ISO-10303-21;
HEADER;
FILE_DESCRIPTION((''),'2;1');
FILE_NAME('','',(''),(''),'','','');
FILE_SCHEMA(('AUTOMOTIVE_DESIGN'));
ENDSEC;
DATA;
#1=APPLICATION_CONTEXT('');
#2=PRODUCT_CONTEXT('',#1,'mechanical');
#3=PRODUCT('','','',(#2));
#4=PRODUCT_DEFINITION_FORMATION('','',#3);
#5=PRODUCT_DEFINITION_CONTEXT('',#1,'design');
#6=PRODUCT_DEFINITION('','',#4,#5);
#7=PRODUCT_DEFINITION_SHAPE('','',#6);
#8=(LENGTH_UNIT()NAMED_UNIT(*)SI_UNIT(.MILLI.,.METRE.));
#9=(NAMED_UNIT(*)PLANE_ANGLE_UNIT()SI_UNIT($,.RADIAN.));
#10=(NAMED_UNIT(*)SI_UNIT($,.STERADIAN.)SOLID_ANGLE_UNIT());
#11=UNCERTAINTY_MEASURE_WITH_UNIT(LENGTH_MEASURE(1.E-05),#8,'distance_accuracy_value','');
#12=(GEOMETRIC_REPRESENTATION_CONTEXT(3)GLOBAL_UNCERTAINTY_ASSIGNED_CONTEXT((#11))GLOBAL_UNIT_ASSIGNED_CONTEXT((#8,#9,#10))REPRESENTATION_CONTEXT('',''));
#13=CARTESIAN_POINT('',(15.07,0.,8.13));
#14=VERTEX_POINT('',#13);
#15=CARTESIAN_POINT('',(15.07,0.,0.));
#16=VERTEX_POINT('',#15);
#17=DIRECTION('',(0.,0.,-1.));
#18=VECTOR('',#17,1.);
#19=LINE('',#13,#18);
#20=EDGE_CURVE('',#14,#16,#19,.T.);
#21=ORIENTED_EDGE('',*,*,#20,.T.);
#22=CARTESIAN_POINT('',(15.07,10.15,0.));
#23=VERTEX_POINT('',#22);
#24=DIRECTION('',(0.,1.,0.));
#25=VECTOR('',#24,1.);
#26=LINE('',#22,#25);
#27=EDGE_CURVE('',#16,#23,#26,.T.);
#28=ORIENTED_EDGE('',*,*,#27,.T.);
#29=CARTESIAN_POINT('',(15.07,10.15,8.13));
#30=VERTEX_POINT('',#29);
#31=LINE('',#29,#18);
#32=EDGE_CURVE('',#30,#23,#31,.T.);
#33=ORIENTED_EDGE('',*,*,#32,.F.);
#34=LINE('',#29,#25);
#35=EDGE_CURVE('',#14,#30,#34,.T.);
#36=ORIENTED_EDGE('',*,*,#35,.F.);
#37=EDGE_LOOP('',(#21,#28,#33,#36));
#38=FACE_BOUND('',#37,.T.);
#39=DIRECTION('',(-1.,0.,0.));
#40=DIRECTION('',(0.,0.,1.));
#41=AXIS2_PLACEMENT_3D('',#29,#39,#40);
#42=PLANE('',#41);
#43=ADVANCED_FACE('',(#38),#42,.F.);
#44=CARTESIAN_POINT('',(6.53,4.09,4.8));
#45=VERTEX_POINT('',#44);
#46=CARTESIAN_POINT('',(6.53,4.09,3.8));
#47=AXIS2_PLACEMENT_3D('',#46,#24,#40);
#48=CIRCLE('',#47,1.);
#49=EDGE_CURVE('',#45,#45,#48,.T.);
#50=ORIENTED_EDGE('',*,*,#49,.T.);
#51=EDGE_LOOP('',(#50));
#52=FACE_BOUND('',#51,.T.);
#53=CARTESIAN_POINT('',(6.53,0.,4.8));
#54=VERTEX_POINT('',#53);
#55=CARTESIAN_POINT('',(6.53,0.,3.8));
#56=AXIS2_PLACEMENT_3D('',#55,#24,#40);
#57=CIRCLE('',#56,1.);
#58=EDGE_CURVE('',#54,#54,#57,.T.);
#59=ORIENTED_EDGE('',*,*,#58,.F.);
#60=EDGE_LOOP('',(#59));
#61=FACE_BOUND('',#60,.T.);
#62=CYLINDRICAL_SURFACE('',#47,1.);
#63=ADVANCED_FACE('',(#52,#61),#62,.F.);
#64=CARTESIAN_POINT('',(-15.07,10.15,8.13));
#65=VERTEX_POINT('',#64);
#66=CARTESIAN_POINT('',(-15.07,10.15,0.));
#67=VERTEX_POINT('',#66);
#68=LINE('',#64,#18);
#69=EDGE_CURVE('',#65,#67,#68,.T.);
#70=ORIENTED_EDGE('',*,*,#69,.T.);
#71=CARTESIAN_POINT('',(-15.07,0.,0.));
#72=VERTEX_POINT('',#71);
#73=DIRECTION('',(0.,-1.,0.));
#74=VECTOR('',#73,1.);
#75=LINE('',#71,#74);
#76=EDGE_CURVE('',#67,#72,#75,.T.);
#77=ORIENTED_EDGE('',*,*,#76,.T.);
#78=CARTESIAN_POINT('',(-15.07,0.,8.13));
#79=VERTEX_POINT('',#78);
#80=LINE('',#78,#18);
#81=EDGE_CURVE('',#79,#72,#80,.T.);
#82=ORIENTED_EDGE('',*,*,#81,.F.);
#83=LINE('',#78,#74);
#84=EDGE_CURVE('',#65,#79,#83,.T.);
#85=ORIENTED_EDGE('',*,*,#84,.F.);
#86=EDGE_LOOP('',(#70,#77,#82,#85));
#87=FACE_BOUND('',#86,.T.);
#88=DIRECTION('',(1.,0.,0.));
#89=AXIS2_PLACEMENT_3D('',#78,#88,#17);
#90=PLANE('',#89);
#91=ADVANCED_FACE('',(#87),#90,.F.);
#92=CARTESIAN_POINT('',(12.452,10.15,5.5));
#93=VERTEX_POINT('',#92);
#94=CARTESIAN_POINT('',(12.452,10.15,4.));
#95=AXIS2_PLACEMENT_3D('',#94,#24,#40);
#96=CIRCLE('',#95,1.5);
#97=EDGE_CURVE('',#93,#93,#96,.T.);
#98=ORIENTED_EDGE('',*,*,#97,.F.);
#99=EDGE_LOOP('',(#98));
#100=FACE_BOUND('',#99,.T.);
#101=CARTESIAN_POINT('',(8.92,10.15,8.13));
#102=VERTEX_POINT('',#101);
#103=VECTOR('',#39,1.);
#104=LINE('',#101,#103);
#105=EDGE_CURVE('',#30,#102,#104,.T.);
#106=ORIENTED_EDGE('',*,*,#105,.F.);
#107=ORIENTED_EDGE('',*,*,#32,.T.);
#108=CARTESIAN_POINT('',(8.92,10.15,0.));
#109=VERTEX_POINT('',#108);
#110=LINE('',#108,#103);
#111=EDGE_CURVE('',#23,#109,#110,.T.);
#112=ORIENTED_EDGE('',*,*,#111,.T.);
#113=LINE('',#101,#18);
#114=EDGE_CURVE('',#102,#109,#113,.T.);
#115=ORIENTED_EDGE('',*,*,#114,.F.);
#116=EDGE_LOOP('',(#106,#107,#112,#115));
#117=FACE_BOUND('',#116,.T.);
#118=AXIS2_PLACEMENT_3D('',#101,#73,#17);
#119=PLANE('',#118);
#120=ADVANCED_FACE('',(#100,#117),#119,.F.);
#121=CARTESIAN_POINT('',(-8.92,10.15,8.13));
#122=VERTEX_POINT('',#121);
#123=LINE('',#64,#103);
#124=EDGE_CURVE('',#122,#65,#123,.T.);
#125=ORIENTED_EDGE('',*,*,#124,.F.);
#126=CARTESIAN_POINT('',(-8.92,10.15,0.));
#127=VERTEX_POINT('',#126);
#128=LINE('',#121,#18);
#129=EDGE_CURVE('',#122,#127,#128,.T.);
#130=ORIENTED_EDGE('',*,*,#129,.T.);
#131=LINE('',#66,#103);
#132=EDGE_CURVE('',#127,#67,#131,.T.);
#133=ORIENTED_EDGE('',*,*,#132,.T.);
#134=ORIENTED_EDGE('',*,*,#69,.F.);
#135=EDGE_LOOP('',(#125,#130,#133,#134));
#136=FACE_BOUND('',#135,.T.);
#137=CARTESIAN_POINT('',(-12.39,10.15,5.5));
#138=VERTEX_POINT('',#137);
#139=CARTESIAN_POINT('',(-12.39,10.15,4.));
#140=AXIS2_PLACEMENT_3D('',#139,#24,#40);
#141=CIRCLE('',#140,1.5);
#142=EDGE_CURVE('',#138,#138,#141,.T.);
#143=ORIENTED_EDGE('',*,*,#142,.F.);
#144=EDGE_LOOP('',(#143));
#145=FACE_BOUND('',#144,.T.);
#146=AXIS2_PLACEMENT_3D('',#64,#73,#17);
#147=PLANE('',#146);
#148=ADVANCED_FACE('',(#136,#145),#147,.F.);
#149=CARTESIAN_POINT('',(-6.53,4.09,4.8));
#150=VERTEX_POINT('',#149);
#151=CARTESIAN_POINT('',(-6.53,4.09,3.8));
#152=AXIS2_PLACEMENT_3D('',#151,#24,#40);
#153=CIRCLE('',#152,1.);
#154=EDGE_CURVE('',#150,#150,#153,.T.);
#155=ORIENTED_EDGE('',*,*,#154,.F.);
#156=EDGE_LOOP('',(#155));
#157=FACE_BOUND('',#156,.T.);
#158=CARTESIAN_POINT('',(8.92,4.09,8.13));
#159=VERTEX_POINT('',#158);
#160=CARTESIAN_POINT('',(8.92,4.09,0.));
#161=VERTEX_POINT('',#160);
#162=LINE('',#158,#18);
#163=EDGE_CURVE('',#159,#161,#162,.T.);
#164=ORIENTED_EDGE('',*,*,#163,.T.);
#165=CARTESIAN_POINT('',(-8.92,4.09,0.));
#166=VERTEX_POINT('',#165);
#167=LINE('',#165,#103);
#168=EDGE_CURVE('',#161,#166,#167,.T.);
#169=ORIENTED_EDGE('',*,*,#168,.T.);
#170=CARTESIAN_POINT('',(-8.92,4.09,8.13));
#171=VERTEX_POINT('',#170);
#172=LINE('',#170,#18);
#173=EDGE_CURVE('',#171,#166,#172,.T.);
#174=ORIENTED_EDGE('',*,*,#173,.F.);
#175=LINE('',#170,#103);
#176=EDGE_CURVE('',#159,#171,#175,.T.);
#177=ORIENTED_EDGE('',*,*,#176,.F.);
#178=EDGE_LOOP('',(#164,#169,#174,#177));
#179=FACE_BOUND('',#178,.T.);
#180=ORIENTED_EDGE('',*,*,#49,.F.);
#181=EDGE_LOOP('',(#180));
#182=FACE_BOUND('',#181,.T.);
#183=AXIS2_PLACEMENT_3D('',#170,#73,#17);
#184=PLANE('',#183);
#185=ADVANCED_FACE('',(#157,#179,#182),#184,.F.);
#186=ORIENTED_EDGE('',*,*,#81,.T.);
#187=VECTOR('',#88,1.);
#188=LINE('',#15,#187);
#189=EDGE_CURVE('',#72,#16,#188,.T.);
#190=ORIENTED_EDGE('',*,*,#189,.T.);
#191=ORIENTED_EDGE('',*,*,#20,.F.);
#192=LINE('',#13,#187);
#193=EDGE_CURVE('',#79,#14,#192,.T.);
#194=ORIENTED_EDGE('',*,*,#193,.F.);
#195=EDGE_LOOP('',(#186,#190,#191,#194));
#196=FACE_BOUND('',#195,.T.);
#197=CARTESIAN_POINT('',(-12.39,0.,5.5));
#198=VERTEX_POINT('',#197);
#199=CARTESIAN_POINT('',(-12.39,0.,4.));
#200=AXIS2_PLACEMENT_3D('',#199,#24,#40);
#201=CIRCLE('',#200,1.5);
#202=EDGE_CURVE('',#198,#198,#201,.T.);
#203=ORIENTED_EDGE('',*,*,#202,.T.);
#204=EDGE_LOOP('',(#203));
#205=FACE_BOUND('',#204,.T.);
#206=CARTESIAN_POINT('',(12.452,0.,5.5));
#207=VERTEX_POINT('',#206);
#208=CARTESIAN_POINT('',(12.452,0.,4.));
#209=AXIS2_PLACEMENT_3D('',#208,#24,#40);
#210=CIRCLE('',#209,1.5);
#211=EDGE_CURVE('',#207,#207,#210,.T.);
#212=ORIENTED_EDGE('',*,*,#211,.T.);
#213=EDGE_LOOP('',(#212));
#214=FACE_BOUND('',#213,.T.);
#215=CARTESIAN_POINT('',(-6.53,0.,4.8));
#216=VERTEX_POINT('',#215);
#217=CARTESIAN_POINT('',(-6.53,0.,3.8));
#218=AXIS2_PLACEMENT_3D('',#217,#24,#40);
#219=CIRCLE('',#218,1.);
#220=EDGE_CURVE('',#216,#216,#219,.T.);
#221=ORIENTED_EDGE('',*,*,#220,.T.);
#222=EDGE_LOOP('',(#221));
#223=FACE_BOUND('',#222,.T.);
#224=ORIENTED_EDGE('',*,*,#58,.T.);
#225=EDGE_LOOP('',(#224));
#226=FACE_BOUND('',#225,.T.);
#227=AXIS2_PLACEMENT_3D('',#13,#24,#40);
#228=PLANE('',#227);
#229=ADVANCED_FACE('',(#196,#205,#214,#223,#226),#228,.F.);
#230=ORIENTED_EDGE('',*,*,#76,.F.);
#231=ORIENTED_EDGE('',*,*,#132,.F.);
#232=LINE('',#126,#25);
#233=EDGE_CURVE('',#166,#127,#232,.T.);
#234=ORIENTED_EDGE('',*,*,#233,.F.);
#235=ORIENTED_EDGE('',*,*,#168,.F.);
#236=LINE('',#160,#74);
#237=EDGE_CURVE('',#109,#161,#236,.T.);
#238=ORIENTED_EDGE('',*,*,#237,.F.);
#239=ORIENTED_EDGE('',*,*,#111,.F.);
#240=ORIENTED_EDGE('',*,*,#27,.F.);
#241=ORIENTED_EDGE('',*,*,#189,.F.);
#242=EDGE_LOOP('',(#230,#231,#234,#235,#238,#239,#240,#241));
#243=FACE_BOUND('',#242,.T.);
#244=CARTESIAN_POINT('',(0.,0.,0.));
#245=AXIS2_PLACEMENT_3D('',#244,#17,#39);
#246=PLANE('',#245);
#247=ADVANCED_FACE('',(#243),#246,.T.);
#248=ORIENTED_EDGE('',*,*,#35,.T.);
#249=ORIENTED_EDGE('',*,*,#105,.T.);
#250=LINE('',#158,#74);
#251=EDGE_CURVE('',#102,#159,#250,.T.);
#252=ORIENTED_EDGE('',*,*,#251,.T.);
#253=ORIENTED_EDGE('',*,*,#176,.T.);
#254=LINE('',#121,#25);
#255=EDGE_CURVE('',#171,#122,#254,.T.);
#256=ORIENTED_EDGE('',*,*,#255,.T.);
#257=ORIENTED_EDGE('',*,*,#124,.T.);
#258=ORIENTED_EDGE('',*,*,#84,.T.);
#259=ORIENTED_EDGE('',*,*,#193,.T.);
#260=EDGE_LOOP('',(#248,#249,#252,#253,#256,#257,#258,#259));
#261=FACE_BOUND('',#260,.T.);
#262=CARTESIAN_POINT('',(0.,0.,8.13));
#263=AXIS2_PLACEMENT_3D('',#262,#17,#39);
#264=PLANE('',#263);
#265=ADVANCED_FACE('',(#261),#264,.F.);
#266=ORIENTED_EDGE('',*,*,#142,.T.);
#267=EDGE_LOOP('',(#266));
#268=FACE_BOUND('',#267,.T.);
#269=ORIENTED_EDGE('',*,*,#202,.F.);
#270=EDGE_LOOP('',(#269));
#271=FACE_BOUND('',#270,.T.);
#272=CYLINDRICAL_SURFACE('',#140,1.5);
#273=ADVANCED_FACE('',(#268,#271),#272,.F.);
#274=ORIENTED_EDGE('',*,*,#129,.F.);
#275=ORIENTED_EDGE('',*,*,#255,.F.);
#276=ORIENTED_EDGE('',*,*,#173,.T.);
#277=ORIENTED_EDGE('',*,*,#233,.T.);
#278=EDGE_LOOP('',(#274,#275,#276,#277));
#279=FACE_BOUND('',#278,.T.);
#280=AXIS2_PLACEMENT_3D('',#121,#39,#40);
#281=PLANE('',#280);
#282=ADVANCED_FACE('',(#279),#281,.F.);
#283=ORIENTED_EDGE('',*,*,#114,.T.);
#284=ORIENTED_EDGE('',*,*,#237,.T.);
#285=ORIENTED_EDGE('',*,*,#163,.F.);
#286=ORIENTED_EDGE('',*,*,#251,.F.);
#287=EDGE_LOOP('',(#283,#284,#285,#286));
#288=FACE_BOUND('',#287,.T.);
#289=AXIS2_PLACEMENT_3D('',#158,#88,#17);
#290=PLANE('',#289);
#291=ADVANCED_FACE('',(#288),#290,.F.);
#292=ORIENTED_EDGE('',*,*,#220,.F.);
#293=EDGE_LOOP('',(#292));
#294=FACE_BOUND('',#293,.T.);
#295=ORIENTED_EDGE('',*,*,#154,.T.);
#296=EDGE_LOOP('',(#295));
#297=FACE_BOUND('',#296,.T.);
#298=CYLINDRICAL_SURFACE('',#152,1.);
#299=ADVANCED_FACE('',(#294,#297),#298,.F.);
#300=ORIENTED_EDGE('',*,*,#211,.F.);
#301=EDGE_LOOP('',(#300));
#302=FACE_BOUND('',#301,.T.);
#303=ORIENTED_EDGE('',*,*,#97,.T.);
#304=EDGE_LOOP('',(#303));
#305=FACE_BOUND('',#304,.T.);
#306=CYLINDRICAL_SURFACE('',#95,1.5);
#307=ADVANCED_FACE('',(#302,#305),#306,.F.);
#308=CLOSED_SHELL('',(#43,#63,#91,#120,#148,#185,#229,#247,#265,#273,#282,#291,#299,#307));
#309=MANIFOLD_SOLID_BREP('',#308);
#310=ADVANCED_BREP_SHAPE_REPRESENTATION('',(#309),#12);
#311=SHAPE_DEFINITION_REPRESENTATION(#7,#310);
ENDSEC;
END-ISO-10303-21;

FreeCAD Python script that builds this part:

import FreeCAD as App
import Part
import Sketcher
from FreeCAD import Vector
Q = App.Units.Quantity

doc = App.newDocument("Part")
body = doc.addObject("PartDesign::Body", "Body")

sketch1 = body.newObject("Sketcher::SketchObject", "Sketch")
sketch1.AttachmentSupport = (doc.getObject("XY_Plane"), [""])
sketch1.MapMode = "FlatFace"
sketch1.addGeometry([
    Part.LineSegment(Vector(-15.07, 10.15, 0), Vector(-15.07, 0, 0)),
    Part.LineSegment(Vector(-15.07, 0, 0), Vector(15.07, 0, 0)),
    Part.LineSegment(Vector(15.07, 0, 0), Vector(15.07, 10.15, 0)),
    Part.LineSegment(Vector(15.07, 10.15, 0), Vector(8.92, 10.15, 0)),
    Part.LineSegment(Vector(8.92, 10.15, 0), Vector(8.92, 4.09, 0)),
    Part.LineSegment(Vector(8.92, 4.09, 0), Vector(-8.92, 4.09, 0)),
    Part.LineSegment(Vector(-8.92, 4.09, 0), Vector(-8.92, 10.15, 0)),
    Part.LineSegment(Vector(-8.92, 10.15, 0), Vector(-15.07, 10.15, 0)),
], False)
sketch1.addConstraint([
    Sketcher.Constraint("Coincident", 0, 2, 1, 1),
    Sketcher.Constraint("Coincident", 1, 2, 2, 1),
    Sketcher.Constraint("Coincident", 2, 2, 3, 1),
    Sketcher.Constraint("Coincident", 3, 2, 4, 1),
    Sketcher.Constraint("Coincident", 4, 2, 5, 1),
    Sketcher.Constraint("Coincident", 5, 2, 6, 1),
    Sketcher.Constraint("Coincident", 6, 2, 7, 1),
    Sketcher.Constraint("Coincident", 7, 2, 0, 1),
    Sketcher.Constraint("Vertical", 0),
    Sketcher.Constraint("Horizontal", 1),
    Sketcher.Constraint("Vertical", 2),
    Sketcher.Constraint("Horizontal", 3),
    Sketcher.Constraint("Vertical", 4),
    Sketcher.Constraint("Horizontal", 5),
    Sketcher.Constraint("Vertical", 6),
    Sketcher.Constraint("Horizontal", 7),
    Sketcher.Constraint("Symmetric", 0, 2, 1, 2, -1, 1),
    Sketcher.Constraint("Symmetric", 3, 2, 6, 2, -2),
    Sketcher.Constraint("DistanceX", 1, 1, 1, 2, Q("30.14 mm")),
    Sketcher.Constraint("DistanceX", 3, 2, 3, 1, Q("6.15 mm")),
    Sketcher.Constraint("DistanceY", 0, 2, 0, 1, Q("10.15 mm")),
    Sketcher.Constraint("DistanceY", 4, 2, 4, 1, Q("6.06 mm")),
])
pad1 = body.newObject("PartDesign::Pad", "Pad")
pad1.Profile = sketch1
pad1.Length = 8.13

sketch2 = body.newObject("Sketcher::SketchObject", "Sketch001")
sketch2.AttachmentSupport = (doc.getObject("XZ_Plane"), [""])
sketch2.MapMode = "FlatFace"
sketch2.AttachmentOffset = App.Placement(Vector(0, 0, -10.15), App.Rotation())
sketch2.addGeometry([
    Part.Circle(Vector(-12.39, 4, 0), Vector(0, 0, 1), 1.5),
    Part.Circle(Vector(12.452, 4, 0), Vector(0, 0, 1), 1.5),
], False)
sketch2.addConstraint([
    Sketcher.Constraint("Equal", 0, 1),
    Sketcher.Constraint("Horizontal", 0, 3, 1, 3),
    Sketcher.Constraint("Diameter", 0, Q("3 mm")),
    Sketcher.Constraint("DistanceY", -1, 1, 0, 3, Q("4 mm")),
    Sketcher.Constraint("DistanceX", 0, 3, -1, 1, Q("12.39 mm")),
    Sketcher.Constraint("DistanceX", -1, 1, 1, 3, Q("12.452 mm")),
])
doc.recompute()
hole = body.newObject("PartDesign::Hole", "Hole")
hole.Profile = sketch2
hole.ThreadType = "None"
hole.Diameter = 3
hole.DepthType = "Dimension"
hole.Depth = 35
hole.DrillPoint = "Angled"
hole.DrillPointAngle = 118
hole.Reversed = True

sketch3 = body.newObject("Sketcher::SketchObject", "Sketch002")
sketch3.AttachmentSupport = (doc.getObject("XZ_Plane"), [""])
sketch3.MapMode = "FlatFace"
sketch3.AttachmentOffset = App.Placement(Vector(0, 0, -4.09), App.Rotation())
sketch3.addGeometry([
    Part.Circle(Vector(-6.53, 3.8, 0), Vector(0, 0, 1), 1),
    Part.Circle(Vector(6.53, 3.8, 0), Vector(0, 0, 1), 1),
], False)
sketch3.addConstraint([
    Sketcher.Constraint("Equal", 0, 1),
    Sketcher.Constraint("Symmetric", 0, 3, 1, 3, -2),
    Sketcher.Constraint("Diameter", 0, Q("2 mm")),
    Sketcher.Constraint("DistanceY", -1, 1, 0, 3, Q("3.8 mm")),
    Sketcher.Constraint("DistanceX", 0, 3, -1, 1, Q("6.53 mm")),
])
doc.recompute()
hole2 = body.newObject("PartDesign::Hole", "Hole001")
hole2.Profile = sketch3
hole2.ThreadType = "None"
hole2.Diameter = 2
hole2.DepthType = "Dimension"
hole2.Depth = 35
hole2.DrillPoint = "Angled"
hole2.DrillPointAngle = 118
hole2.Reversed = True

doc.recompute()
